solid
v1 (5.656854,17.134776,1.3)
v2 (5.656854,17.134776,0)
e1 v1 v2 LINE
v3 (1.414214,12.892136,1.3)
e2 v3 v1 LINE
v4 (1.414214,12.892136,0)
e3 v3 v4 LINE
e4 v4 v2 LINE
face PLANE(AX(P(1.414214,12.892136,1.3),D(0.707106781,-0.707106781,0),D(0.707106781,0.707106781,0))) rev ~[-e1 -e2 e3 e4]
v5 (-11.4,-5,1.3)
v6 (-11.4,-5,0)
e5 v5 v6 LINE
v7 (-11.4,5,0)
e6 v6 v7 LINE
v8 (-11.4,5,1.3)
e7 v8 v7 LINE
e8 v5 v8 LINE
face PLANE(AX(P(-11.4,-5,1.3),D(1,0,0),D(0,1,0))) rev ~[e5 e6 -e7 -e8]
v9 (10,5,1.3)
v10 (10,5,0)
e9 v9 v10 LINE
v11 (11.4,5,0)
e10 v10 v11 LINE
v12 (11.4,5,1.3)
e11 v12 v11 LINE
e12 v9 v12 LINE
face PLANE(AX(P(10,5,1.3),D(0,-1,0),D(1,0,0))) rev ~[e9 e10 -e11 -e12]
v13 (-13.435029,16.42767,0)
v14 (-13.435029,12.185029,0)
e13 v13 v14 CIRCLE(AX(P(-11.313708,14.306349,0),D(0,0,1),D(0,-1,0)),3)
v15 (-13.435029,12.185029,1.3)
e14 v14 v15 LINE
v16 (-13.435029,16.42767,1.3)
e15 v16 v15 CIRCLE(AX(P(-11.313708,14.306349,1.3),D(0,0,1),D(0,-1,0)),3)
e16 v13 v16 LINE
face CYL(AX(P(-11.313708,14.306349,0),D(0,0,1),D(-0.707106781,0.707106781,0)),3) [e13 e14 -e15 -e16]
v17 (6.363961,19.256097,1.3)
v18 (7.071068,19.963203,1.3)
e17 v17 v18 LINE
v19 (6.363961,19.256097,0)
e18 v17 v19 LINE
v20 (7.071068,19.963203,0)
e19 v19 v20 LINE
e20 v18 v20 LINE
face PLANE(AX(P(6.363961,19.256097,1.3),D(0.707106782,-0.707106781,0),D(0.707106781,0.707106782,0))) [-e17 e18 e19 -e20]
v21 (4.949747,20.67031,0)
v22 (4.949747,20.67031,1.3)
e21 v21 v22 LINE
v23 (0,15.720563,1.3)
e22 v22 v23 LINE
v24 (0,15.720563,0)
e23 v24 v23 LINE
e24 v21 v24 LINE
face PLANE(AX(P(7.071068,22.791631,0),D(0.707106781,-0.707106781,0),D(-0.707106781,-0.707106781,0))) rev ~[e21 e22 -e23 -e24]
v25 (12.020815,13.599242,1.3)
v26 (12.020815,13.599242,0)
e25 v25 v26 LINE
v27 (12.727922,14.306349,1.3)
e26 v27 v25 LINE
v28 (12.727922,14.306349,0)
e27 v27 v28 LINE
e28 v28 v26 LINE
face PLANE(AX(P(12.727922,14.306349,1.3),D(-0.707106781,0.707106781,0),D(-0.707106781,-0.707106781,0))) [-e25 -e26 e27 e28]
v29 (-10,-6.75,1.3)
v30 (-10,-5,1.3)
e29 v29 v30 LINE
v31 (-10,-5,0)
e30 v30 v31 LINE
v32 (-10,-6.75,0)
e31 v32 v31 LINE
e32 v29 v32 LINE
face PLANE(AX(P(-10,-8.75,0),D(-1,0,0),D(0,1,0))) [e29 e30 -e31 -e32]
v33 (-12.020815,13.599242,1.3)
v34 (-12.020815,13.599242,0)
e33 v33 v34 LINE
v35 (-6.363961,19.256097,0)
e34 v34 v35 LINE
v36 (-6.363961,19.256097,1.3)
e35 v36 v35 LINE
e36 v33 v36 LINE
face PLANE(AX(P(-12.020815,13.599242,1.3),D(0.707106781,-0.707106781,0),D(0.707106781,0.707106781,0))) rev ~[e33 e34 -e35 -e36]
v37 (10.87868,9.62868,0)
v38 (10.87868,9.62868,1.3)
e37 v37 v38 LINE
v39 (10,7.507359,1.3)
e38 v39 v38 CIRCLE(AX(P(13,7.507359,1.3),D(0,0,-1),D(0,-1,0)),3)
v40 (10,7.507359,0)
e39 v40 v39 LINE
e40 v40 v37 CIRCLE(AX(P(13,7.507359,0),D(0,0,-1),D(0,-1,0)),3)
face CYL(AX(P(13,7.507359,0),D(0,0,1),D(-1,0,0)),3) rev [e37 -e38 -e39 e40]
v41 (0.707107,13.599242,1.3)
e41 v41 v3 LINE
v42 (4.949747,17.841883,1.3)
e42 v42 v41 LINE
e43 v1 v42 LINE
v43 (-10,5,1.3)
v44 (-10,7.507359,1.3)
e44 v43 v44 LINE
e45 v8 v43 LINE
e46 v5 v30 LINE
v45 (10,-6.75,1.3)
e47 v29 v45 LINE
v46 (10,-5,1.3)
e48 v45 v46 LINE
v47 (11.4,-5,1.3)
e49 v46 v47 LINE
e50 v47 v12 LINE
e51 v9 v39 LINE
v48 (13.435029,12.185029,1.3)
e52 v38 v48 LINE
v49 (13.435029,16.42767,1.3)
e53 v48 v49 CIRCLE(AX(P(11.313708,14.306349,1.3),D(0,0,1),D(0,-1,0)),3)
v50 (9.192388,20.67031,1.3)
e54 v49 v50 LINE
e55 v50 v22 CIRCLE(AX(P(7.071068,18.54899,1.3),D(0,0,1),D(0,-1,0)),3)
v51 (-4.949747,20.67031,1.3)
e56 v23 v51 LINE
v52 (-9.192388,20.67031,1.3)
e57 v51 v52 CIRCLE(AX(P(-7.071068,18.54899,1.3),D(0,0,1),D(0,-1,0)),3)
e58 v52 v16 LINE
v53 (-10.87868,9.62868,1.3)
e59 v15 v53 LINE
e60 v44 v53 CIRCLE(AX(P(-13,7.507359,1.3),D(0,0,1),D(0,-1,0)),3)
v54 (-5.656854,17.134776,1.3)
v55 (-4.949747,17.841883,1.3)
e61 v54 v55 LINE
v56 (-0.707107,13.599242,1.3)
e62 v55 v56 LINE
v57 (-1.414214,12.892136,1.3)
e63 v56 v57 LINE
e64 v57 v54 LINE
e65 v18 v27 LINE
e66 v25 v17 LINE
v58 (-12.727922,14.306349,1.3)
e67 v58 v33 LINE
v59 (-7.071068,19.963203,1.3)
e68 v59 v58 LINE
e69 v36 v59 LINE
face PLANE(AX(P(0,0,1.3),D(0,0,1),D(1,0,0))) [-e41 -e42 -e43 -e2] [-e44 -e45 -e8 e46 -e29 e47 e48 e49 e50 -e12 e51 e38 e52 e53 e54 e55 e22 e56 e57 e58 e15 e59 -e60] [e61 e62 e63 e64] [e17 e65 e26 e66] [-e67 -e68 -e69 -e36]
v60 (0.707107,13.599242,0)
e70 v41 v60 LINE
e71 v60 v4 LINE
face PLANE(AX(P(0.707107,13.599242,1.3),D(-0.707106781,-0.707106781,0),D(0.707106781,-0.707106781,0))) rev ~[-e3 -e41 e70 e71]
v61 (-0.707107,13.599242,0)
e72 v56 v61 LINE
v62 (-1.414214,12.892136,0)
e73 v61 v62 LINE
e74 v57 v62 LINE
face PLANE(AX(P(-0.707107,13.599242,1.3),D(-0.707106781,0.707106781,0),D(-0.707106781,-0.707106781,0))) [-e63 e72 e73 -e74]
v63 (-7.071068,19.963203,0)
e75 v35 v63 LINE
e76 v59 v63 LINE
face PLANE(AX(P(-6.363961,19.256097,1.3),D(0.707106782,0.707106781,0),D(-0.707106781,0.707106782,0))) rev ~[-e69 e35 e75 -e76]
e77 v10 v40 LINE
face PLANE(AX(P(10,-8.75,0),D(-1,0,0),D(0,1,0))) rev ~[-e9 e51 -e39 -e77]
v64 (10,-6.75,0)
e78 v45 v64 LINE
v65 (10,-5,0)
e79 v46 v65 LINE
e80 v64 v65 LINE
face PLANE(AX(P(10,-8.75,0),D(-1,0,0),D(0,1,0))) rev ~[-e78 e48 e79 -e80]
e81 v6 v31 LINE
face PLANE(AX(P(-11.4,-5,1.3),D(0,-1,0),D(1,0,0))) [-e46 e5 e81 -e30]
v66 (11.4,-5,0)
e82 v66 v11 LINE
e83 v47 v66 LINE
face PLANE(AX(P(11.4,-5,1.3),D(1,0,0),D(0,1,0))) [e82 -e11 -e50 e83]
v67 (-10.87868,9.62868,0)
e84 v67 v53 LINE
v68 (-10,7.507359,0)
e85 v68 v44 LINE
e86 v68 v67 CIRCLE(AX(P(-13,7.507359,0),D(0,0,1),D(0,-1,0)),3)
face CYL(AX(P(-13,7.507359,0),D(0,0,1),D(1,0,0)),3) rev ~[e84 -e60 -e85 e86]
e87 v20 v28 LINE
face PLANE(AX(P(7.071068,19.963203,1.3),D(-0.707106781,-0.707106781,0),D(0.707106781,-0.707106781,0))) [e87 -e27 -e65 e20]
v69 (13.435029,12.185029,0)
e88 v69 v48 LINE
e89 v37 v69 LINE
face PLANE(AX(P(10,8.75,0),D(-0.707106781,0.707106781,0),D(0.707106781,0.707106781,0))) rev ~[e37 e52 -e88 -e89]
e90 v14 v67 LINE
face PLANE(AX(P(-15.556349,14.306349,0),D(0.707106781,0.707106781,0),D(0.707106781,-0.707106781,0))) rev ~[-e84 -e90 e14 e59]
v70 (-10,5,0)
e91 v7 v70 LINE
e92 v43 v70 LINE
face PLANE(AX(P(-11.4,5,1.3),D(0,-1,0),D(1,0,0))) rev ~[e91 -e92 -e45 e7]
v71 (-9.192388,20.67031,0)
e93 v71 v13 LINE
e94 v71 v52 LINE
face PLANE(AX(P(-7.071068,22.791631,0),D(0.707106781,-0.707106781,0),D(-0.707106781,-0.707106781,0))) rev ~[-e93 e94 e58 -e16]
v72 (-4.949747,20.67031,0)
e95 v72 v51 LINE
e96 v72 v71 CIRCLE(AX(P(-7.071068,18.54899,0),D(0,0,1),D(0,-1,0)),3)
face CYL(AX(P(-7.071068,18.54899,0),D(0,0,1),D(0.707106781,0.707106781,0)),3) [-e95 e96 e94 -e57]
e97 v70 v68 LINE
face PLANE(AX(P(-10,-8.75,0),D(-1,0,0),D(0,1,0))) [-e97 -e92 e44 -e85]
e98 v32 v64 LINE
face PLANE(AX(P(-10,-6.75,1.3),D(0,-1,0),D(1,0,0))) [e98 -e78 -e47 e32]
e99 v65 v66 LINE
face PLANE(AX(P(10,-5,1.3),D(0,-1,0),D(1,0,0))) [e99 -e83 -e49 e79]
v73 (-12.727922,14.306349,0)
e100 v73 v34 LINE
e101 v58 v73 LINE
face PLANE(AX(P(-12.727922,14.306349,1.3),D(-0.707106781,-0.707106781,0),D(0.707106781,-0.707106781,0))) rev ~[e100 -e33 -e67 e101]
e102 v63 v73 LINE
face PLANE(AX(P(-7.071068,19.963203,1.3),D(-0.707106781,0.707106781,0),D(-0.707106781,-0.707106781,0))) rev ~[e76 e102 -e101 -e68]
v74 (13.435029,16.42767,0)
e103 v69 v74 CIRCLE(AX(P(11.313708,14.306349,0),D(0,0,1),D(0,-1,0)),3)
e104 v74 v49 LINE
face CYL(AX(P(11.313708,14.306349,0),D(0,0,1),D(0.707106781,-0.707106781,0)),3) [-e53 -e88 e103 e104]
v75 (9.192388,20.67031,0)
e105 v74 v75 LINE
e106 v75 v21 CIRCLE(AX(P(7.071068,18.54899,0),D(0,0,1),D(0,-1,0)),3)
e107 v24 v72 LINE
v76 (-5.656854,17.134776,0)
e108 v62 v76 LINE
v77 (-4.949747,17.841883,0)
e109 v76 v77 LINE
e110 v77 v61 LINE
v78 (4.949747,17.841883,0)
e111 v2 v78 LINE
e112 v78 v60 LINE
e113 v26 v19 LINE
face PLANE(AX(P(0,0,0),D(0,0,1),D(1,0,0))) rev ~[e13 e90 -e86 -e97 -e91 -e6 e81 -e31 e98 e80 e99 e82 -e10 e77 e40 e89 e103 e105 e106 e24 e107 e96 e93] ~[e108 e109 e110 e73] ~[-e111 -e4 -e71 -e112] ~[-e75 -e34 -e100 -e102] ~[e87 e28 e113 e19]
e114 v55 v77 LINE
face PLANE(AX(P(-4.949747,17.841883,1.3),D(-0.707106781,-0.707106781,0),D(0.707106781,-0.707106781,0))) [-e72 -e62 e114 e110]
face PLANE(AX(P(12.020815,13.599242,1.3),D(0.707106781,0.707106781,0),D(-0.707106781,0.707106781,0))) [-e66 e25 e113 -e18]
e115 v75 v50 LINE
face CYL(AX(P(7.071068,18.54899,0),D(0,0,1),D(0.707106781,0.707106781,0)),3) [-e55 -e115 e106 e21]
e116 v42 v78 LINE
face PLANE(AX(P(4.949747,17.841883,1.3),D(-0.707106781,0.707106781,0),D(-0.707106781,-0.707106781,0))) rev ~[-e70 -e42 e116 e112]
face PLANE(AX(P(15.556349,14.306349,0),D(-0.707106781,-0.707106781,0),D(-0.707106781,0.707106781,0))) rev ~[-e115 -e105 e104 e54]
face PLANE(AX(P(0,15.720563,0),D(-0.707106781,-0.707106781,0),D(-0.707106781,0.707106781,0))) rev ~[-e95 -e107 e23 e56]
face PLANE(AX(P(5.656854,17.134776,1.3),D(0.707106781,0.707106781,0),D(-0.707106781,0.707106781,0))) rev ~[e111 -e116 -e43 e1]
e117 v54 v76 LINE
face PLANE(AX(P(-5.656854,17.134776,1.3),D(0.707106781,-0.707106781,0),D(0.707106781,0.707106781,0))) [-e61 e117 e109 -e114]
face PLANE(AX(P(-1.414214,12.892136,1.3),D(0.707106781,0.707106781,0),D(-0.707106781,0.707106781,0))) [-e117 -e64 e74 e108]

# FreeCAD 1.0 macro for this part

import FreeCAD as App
import Part
import Sketcher
from FreeCAD import Vector


def edges_at(feature, points):
    """Names of the edges that pass closest to the given points."""
    edges = feature.Shape.Edges
    near = lambda p: min(range(len(edges)), key=lambda i: edges[i].distToShape(Part.Vertex(*p))[0])
    return sorted({f"Edge{near(p) + 1}" for p in points})


def add_polygon(sketch, points):
    """Adds a closed chain of lines whose ends are joined by coincident constraints."""
    first, n = sketch.GeometryCount, len(points)
    for a, b in zip(points, points[1:] + points[:1]):
        sketch.addGeometry(Part.LineSegment(App.Vector(*a, 0), App.Vector(*b, 0)), False)
    for i in range(n):
        sketch.addConstraint(Sketcher.Constraint("Coincident", first + i, 2, first + (i + 1) % n, 1))

doc = App.newDocument("Part")
body = doc.addObject("PartDesign::Body", "Body")

# Sketch on XY plane
sketch1 = doc.addObject("Sketcher::SketchObject", "Sketch")
body.addObject(sketch1)
sketch1.AttachmentSupport = (doc.XY_Plane, [""])
sketch1.MapMode = "FlatFace"
add_polygon(sketch1, [(-10, 9), (-10, -9), (10, -9), (10, 9), (16, 14), (7, 23), (0, 16), (-7, 23), (-16, 14)])  # lines 0-8
sketch1.addConstraint([
    Sketcher.Constraint("Vertical", 0),
    Sketcher.Constraint("Horizontal", 1),
    Sketcher.Constraint("Vertical", 2),
    Sketcher.Constraint("Symmetric", 0, 2, 2, 2, -1, 1),
    Sketcher.Constraint("Symmetric", 4, 2, 6, 2, -2),
    Sketcher.Constraint("Symmetric", 3, 2, 7, 2, -2),
    Sketcher.Constraint("PointOnObject", 5, 2, -2),
    Sketcher.Constraint("Perpendicular", 3, 4),
    Sketcher.Constraint("Perpendicular", 4, 5),
    Sketcher.Constraint("Perpendicular", 5, 6),
    Sketcher.Constraint("Perpendicular", 7, 8),
    Sketcher.Constraint("DistanceX", 1, 1, 1, 2, 20.0),
    Sketcher.Constraint("Distance", 4, 12.0),
    Sketcher.Constraint("Distance", 5, 10.0),
    Sketcher.Constraint("DistanceY", 0, 2, 0, 1, 17.5),
])
pad1 = doc.addObject("PartDesign::Pad", "Pad")
body.addObject(pad1)
pad1.Profile = sketch1
pad1.Length = 1.3
doc.recompute()

fillet = doc.addObject("PartDesign::Fillet", "Fillet")
body.addObject(fillet)
fillet.Base = (pad1, edges_at(pad1, [
    (10, 8.75, 0.65),
    (-10, 8.75, 0.65),
    (-15.556, 14.306, 0.65),
    (-7.071, 22.792, 0.65),
    (7.071, 22.792, 0.65),
    (15.556, 14.306, 0.65),
]))
fillet.Radius = 3

# Sketch on XY plane
sketch2 = doc.addObject("Sketcher::SketchObject", "Sketch001")
body.addObject(sketch2)
sketch2.AttachmentSupport = (doc.XY_Plane, [""])
sketch2.MapMode = "FlatFace"
sketch2.AttachmentOffset = App.Placement(Vector(0, 0, 1.3), App.Rotation())
add_polygon(sketch2, [(12.7, 14.3), (7.1, 20), (6.4, 19.3), (12, 13.6)])  # lines 0-3
add_polygon(sketch2, [(-12.7, 14.3), (-12, 13.6), (-6.4, 19.3), (-7.1, 20)])  # lines 4-7
sketch2.addConstraint([
    Sketcher.Constraint("Symmetric", 2, 2, 4, 2, -2),
    Sketcher.Constraint("Symmetric", 1, 2, 5, 2, -2),
    Sketcher.Constraint("Symmetric", 0, 2, 6, 2, -2),
    Sketcher.Constraint("Symmetric", 3, 2, 7, 2, -2),
    Sketcher.Constraint("Perpendicular", 0, 1),
    Sketcher.Constraint("Perpendicular", 1, 2),
    Sketcher.Constraint("Perpendicular", 2, 3),
    Sketcher.Constraint("Perpendicular", 3, 4),
    Sketcher.Constraint("Distance", 0, 8.0),
    Sketcher.Constraint("Distance", 1, 1.0),
    Sketcher.Constraint("DistanceX", -1, 1, 1, 2, 6.363961),
    Sketcher.Constraint("DistanceY", -1, 1, 3, 2, 14.306349),
])
pocket1 = doc.addObject("PartDesign::Pocket", "Pocket")
body.addObject(pocket1)
pocket1.Profile = sketch2
pocket1.Type = "ThroughAll"

# Sketch on XY plane
sketch3 = doc.addObject("Sketcher::SketchObject", "Sketch002")
body.addObject(sketch3)
sketch3.AttachmentSupport = (doc.XY_Plane, [""])
sketch3.MapMode = "FlatFace"
sketch3.AttachmentOffset = App.Placement(Vector(0, 0, 1.3), App.Rotation())
add_polygon(sketch3, [(-11.4, 5), (-11.4, -5), (-10, -5), (-10, 5)])  # lines 0-3
add_polygon(sketch3, [(10, 5), (10, -5), (11.4, -5), (11.4, 5)])  # lines 4-7
sketch3.addConstraint([
    Sketcher.Constraint("Vertical", 0),
    Sketcher.Constraint("Horizontal", 1),
    Sketcher.Constraint("Vertical", 2),
    Sketcher.Constraint("Horizontal", 3),
    Sketcher.Constraint("Vertical", 4),
    Sketcher.Constraint("Horizontal", 5),
    Sketcher.Constraint("Vertical", 6),
    Sketcher.Constraint("Horizontal", 7),
    Sketcher.Constraint("Symmetric", 2, 2, 4, 2, -1, 1),
    Sketcher.Constraint("Symmetric", 0, 2, 6, 2, -1, 1),
    Sketcher.Constraint("Horizontal", 1, 2, 4, 2),
    Sketcher.Constraint("DistanceY", 0, 2, 0, 1, 10.0),
    Sketcher.Constraint("DistanceX", 1, 1, 1, 2, 1.4),
    Sketcher.Constraint("DistanceX", 1, 2, -1, 1, 10.0),
])
pad2 = doc.addObject("PartDesign::Pad", "Pad001")
body.addObject(pad2)
pad2.Profile = sketch3
pad2.Length = 1.3
pad2.Reversed = True

# Sketch on XY plane
sketch4 = doc.addObject("Sketcher::SketchObject", "Sketch003")
body.addObject(sketch4)
sketch4.AttachmentSupport = (doc.XY_Plane, [""])
sketch4.MapMode = "FlatFace"
sketch4.AttachmentOffset = App.Placement(Vector(0, 0, 1.3), App.Rotation())
add_polygon(sketch4, [(-10, -6.8), (-10, -8.8), (10, -8.8), (10, -6.8)])  # lines 0-3
sketch4.addConstraint([
    Sketcher.Constraint("Vertical", 0),
    Sketcher.Constraint("Horizontal", 1),
    Sketcher.Constraint("Vertical", 2),
    Sketcher.Constraint("Horizontal", 3),
    Sketcher.Constraint("DistanceX", 1, 1, 1, 2, 20.0),
    Sketcher.Constraint("DistanceY", 0, 2, 0, 1, 2.0),
    Sketcher.Constraint("DistanceX", 0, 2, -1, 1, 10.0),
    Sketcher.Constraint("DistanceY", 0, 2, -1, 1, 8.75),
])
pocket2 = doc.addObject("PartDesign::Pocket", "Pocket001")
body.addObject(pocket2)
pocket2.Profile = sketch4
pocket2.Type = "ThroughAll"

# Sketch on XY plane
sketch5 = doc.addObject("Sketcher::SketchObject", "Sketch004")
body.addObject(sketch5)
sketch5.AttachmentSupport = (doc.XY_Plane, [""])
sketch5.MapMode = "FlatFace"
sketch5.AttachmentOffset = App.Placement(Vector(0, 0, 1.3), App.Rotation())
add_polygon(sketch5, [(-0.7, 13.6), (-4.9, 17.8), (-5.7, 17.1), (-1.4, 12.9)])  # lines 0-3
add_polygon(sketch5, [(1.4, 12.9), (5.7, 17.1), (4.9, 17.8), (0.7, 13.6)])  # lines 4-7
sketch5.addConstraint([
    Sketcher.Constraint("Symmetric", 1, 2, 4, 2, -2),
    Sketcher.Constraint("Symmetric", 0, 2, 5, 2, -2),
    Sketcher.Constraint("Symmetric", 3, 2, 6, 2, -2),
    Sketcher.Constraint("Symmetric", 2, 2, 7, 2, -2),
    Sketcher.Constraint("Perpendicular", 0, 1),
    Sketcher.Constraint("Perpendicular", 1, 2),
    Sketcher.Constraint("Perpendicular", 2, 3),
    Sketcher.Constraint("Parallel", 3, 4),
    Sketcher.Constraint("Distance", 0, 6.0),
    Sketcher.Constraint("Distance", 1, 1.0),
    Sketcher.Constraint("DistanceX", 0, 2, 4, 2, 10.606602),
    Sketcher.Constraint("DistanceY", -1, 1, 0, 2, 17.841883),
])
pocket3 = doc.addObject("PartDesign::Pocket", "Pocket002")
body.addObject(pocket3)
pocket3.Profile = sketch5
pocket3.Type = "ThroughAll"

doc.recompute()
